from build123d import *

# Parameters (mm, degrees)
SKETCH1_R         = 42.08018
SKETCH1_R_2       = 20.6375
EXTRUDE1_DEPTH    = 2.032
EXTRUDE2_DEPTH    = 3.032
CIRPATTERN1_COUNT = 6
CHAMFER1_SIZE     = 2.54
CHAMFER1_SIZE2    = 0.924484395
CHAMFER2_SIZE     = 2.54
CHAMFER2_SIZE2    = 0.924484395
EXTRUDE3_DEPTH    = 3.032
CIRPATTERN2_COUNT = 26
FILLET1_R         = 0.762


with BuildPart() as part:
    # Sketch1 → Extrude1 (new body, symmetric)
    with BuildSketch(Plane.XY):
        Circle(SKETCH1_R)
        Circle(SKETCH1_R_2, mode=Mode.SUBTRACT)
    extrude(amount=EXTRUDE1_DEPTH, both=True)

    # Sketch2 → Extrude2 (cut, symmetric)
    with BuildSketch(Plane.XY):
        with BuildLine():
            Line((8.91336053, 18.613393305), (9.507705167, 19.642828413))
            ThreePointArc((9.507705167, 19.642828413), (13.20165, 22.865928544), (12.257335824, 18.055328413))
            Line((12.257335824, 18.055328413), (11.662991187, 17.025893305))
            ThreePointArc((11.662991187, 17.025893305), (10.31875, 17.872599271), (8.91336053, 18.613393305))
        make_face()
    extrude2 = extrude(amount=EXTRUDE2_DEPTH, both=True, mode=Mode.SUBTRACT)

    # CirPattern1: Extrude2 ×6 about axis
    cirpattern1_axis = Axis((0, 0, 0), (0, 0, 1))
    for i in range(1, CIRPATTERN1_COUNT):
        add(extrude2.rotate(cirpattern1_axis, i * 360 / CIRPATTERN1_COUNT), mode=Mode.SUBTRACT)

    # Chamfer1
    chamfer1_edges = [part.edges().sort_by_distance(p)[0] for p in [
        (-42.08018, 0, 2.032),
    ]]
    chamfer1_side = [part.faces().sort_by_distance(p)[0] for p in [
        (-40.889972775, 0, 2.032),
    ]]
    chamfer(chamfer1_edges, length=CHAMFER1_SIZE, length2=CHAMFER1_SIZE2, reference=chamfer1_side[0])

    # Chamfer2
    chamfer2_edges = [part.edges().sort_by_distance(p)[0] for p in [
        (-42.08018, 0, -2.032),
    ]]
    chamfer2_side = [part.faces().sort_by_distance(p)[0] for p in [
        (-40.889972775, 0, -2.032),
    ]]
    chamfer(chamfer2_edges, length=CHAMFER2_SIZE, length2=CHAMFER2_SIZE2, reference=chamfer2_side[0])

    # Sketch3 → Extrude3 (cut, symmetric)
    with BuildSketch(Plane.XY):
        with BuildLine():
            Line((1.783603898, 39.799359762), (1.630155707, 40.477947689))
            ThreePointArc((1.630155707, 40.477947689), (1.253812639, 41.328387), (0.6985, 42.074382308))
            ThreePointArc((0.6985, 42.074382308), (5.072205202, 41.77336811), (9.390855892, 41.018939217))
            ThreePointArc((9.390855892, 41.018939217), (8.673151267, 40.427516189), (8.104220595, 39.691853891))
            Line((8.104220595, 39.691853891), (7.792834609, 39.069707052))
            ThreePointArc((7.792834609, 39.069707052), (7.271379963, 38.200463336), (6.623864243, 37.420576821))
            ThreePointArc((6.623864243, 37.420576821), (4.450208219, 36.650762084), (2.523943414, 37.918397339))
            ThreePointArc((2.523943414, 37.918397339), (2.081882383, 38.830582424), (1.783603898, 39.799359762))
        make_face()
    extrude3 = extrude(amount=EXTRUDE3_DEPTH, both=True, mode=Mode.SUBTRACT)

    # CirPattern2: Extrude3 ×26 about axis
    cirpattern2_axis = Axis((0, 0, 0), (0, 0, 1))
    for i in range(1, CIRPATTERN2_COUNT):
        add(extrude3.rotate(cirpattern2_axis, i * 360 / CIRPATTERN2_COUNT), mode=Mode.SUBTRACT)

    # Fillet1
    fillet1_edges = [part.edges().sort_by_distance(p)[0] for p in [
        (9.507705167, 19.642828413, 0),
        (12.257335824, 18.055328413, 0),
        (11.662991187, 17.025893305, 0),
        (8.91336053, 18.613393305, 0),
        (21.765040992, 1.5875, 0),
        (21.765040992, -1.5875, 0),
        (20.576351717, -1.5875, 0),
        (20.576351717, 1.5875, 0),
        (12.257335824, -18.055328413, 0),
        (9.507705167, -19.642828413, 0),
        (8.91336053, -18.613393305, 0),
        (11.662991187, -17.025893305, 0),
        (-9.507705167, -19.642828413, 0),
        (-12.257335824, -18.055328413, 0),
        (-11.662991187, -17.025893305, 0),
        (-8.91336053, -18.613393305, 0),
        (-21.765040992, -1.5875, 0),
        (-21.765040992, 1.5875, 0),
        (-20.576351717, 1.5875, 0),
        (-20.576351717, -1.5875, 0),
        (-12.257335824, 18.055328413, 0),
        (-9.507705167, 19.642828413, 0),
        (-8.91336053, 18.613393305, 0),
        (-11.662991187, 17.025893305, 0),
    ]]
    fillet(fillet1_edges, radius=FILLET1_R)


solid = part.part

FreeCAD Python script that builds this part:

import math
import FreeCAD as App
import Part
import Sketcher
Q = App.Units.Quantity


def edges_at(feature, points):
    """Names of the edges that pass closest to the given points."""
    edges = feature.Shape.Edges
    near = lambda p: min(range(len(edges)), key=lambda i: edges[i].distToShape(Part.Vertex(*p))[0])
    return sorted({f"Edge{near(p) + 1}" for p in points})

doc = App.newDocument("Part")
body = doc.addObject("PartDesign::Body", "Body")

# Sketch on XY plane
sketch1 = doc.addObject("Sketcher::SketchObject", "Sketch")
body.addObject(sketch1)
sketch1.AttachmentSupport = (doc.XY_Plane, [""])
sketch1.MapMode = "FlatFace"
sketch1.addGeometry(Part.Circle(App.Vector(0, 0, 0), App.Vector(0, 0, 1), 42), False)
sketch1.addGeometry(Part.Circle(App.Vector(0, 0, 0), App.Vector(0, 0, 1), 21), False)
sketch1.addConstraint(Sketcher.Constraint("Coincident", 0, 3, -1, 1))
sketch1.addConstraint(Sketcher.Constraint("Coincident", 1, 3, -1, 1))
sketch1.addConstraint(Sketcher.Constraint("Diameter", 1, Q("1.625 in")))
sketch1.addConstraint(Sketcher.Constraint("Diameter", 0, Q("3.3134 in")))
pad1 = doc.addObject("PartDesign::Pad", "Pad")
body.addObject(pad1)
pad1.Profile = sketch1
pad1.Length = Q("0.16 in")
pad1.Midplane = True

# Sketch on XY plane
sketch2 = doc.addObject("Sketcher::SketchObject", "Sketch001")
body.addObject(sketch2)
sketch2.AttachmentSupport = (doc.XY_Plane, [""])
sketch2.MapMode = "FlatFace"
sketch2.addGeometry(Part.LineSegment(App.Vector(9.507705, 19.642828, 0), App.Vector(8.913361, 18.613393, 0)), False)
sketch2.addGeometry(Part.ArcOfCircle(Part.Circle(App.Vector(0, 0, 0), App.Vector(0, 0, 1), 20.6375), math.radians(55.588274), math.radians(64.411726)), False)
sketch2.addGeometry(Part.LineSegment(App.Vector(11.662991, 17.025893, 0), App.Vector(12.257336, 18.055328, 0)), False)
sketch2.addGeometry(Part.ArcOfCircle(Part.Circle(App.Vector(11.90625, 20.62223, 0), App.Vector(0, 0, 1), 2.5908), math.radians(-82.211743), math.radians(202.211743)), False)
sketch2.addConstraint(Sketcher.Constraint("Coincident", 0, 2, 1, 2))
sketch2.addConstraint(Sketcher.Constraint("Coincident", 1, 1, 2, 1))
sketch2.addConstraint(Sketcher.Constraint("Coincident", 2, 2, 3, 1))
sketch2.addConstraint(Sketcher.Constraint("Coincident", 3, 2, 0, 1))
sketch2.addConstraint(Sketcher.Constraint("Coincident", 1, 3, -1, 1))
sketch2.addConstraint(Sketcher.Constraint("Radius", 1, Q("0.8125 in")))
sketch2.addConstraint(Sketcher.Constraint("Radius", 3, Q("0.102 in")))
sketch2.addConstraint(Sketcher.Constraint("DistanceX", -1, 1, 3, 3, Q("0.46875 in")))
sketch2.addConstraint(Sketcher.Constraint("DistanceY", 1, 1, 0, 2, Q("0.0625 in")))
sketch2.addConstraint(Sketcher.Constraint("DistanceY", 2, 2, 3, 2, Q("0.0625 in")))
sketch2.addConstraint(Sketcher.Constraint("DistanceY", 2, 2, 3, 3, Q("2.566902 mm")))
sketch2.addConstraint(Sketcher.Constraint("Distance", 0, Q("1.188689 mm")))
sketch2.addConstraint(Sketcher.Constraint("Distance", 2, Q("1.188689 mm")))
pocket1 = doc.addObject("PartDesign::Pocket", "Pocket")
body.addObject(pocket1)
pocket1.Profile = sketch2
pocket1.Length = 6.064
pocket1.Midplane = True
doc.recompute()

polarpattern = doc.addObject("PartDesign::PolarPattern", "PolarPattern")
body.addObject(polarpattern)
polarpattern.Originals = [pocket1]
polarpattern.Axis = (doc.Z_Axis, [""])
polarpattern.Angle = 360
polarpattern.Occurrences = 6
body.Tip = polarpattern
doc.recompute()

chamfer = doc.addObject("PartDesign::Chamfer", "Chamfer")
body.addObject(chamfer)
chamfer.Base = (polarpattern, edges_at(polarpattern, [(-42.08, 0, 2.032)]))
chamfer.ChamferType = "Two distances"
chamfer.Size = Q("0.1 in")
chamfer.Size2 = 0.924484
chamfer.FlipDirection = True
doc.recompute()

chamfer2 = doc.addObject("PartDesign::Chamfer", "Chamfer001")
body.addObject(chamfer2)
chamfer2.Base = (chamfer, edges_at(chamfer, [(-42.08, 0, -2.032)]))
chamfer2.ChamferType = "Two distances"
chamfer2.Size = Q("0.1 in")
chamfer2.Size2 = 0.924484
chamfer2.FlipDirection = True

# Sketch on XY plane
sketch3 = doc.addObject("Sketcher::SketchObject", "Sketch002")
body.addObject(sketch3)
sketch3.AttachmentSupport = (doc.XY_Plane, [""])
sketch3.MapMode = "FlatFace"
sketch3.addGeometry(Part.LineSegment(App.Vector(1.6, 40.5, 0), App.Vector(1.8, 39.8, 0)), False)
sketch3.addGeometry(Part.ArcOfCircle(Part.Circle(App.Vector(8.3, 41.3, 0), App.Vector(0, 0, 1), 6.6), math.radians(-167.26), math.radians(-149.77)), False)
sketch3.addGeometry(Part.ArcOfCircle(Part.Circle(App.Vector(4.8, 39.2, 0), App.Vector(0, 0, 1), 2.6), math.radians(-150), math.radians(-44)), False)
sketch3.addGeometry(Part.ArcOfCircle(Part.Circle(App.Vector(1.8, 42, 0), App.Vector(0, 0, 1), 6.6), math.radians(-44.07), math.radians(-26.59)), False)
sketch3.addGeometry(Part.LineSegment(App.Vector(7.8, 39.1, 0), App.Vector(8.1, 39.7, 0)), False)
sketch3.addGeometry(Part.ArcOfCircle(Part.Circle(App.Vector(11.7, 37.5, 0), App.Vector(0, 0, 1), 4.2), math.radians(123), math.radians(149)), False)
sketch3.addGeometry(Part.ArcOfCircle(Part.Circle(App.Vector(0, 0, 0), App.Vector(0, 0, 1), 42.1), math.radians(77.1), math.radians(89.05)), False)
sketch3.addGeometry(Part.ArcOfCircle(Part.Circle(App.Vector(-2.4, 39.2, 0), App.Vector(0, 0, 1), 4.2), math.radians(17), math.radians(43)), False)
sketch3.addConstraint(Sketcher.Constraint("Tangent", 0, 2, 1, 1))
sketch3.addConstraint(Sketcher.Constraint("Tangent", 1, 2, 2, 1))
sketch3.addConstraint(Sketcher.Constraint("Tangent", 2, 2, 3, 1))
sketch3.addConstraint(Sketcher.Constraint("Tangent", 3, 2, 4, 1))
sketch3.addConstraint(Sketcher.Constraint("Coincident", 4, 2, 5, 2))
sketch3.addConstraint(Sketcher.Constraint("Coincident", 5, 1, 6, 1))
sketch3.addConstraint(Sketcher.Constraint("Coincident", 6, 2, 7, 2))
sketch3.addConstraint(Sketcher.Constraint("Coincident", 7, 1, 0, 1))
sketch3.addConstraint(Sketcher.Constraint("Coincident", 6, 3, -1, 1))
sketch3.addConstraint(Sketcher.Constraint("Equal", 1, 3))
sketch3.addConstraint(Sketcher.Constraint("Equal", 5, 7))
sketch3.addConstraint(Sketcher.Constraint("Equal", 0, 4))
sketch3.addConstraint(Sketcher.Constraint("Radius", 2, Q("0.102 in")))
sketch3.addConstraint(Sketcher.Constraint("Radius", 6, Q("1.6567 in")))
sketch3.addConstraint(Sketcher.Constraint("DistanceX", -1, 1, 6, 2, Q("0.0275 in")))
sketch3.addConstraint(Sketcher.Constraint("Radius", 1, Q("6.649667 mm")))
sketch3.addConstraint(Sketcher.Constraint("Radius", 5, Q("4.173805 mm")))
sketch3.addConstraint(Sketcher.Constraint("DistanceX", 2, 3, 5, 3, Q("6.907299 mm")))
sketch3.addConstraint(Sketcher.Constraint("Distance", 0, Q("0.695721 mm")))
sketch3.addConstraint(Sketcher.Constraint("DistanceY", -1, 1, 1, 3, Q("41.26601 mm")))
sketch3.addConstraint(Sketcher.Constraint("DistanceY", -1, 1, 3, 3, Q("42.045918 mm")))
sketch3.addConstraint(Sketcher.Constraint("DistanceY", -1, 1, 7, 3, Q("39.22465 mm")))
sketch3.addConstraint(Sketcher.Constraint("DistanceY", -1, 1, 0, 2, Q("39.79936 mm")))
sketch3.addConstraint(Sketcher.Constraint("DistanceX", -1, 1, 4, 2, Q("8.104221 mm")))
sketch3.addConstraint(Sketcher.Constraint("DistanceY", -1, 1, 5, 1, Q("41.018939 mm")))
pocket2 = doc.addObject("PartDesign::Pocket", "Pocket001")
body.addObject(pocket2)
pocket2.Profile = sketch3
pocket2.Length = 6.064
pocket2.Midplane = True
doc.recompute()

polarpattern2 = doc.addObject("PartDesign::PolarPattern", "PolarPattern001")
body.addObject(polarpattern2)
polarpattern2.Originals = [pocket2]
polarpattern2.Axis = (doc.Z_Axis, [""])
polarpattern2.Angle = 360
polarpattern2.Occurrences = 26
body.Tip = polarpattern2
doc.recompute()

fillet = doc.addObject("PartDesign::Fillet", "Fillet")
body.addObject(fillet)
fillet.Base = (polarpattern2, edges_at(polarpattern2, [
    (9.508, 19.643, 0),
    (12.257, 18.055, 0),
    (11.663, 17.026, 0),
    (8.913, 18.613, 0),
    (21.765, 1.587, 0),
    (21.765, -1.587, 0),
    (20.576, -1.587, 0),
    (20.576, 1.587, 0),
    (12.257, -18.055, 0),
    (9.508, -19.643, 0),
    (8.913, -18.613, 0),
    (11.663, -17.026, 0),
    (-9.508, -19.643, 0),
    (-12.257, -18.055, 0),
    (-11.663, -17.026, 0),
    (-8.913, -18.613, 0),
    (-21.765, -1.587, 0),
    (-21.765, 1.587, 0),
    (-20.576, 1.587, 0),
    (-20.576, -1.587, 0),
    (-12.257, 18.055, 0),
    (-9.508, 19.643, 0),
    (-8.913, 18.613, 0),
    (-11.663, 17.026, 0),
]))
fillet.Radius = Q("0.03 in")

doc.recompute()
